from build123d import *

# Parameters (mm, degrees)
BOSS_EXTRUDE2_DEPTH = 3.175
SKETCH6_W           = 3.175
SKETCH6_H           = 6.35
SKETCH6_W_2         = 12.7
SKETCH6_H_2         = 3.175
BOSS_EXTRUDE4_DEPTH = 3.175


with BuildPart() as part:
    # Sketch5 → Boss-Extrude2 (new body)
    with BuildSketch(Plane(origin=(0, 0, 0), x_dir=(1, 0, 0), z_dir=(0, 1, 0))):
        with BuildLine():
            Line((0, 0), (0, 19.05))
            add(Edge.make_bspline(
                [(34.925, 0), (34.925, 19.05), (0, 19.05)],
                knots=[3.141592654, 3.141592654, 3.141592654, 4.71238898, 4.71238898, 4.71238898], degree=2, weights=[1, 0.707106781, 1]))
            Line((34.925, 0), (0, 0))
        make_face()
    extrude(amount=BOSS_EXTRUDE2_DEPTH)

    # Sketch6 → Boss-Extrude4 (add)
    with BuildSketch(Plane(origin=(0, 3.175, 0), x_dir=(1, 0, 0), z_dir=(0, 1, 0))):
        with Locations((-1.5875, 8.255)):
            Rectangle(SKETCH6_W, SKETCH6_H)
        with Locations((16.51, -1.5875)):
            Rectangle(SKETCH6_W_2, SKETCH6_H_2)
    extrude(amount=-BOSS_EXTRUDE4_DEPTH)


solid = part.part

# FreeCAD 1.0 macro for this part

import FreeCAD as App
import Part
import Sketcher
Q = App.Units.Quantity


def add_polygon(sketch, points):
    """Adds a closed chain of lines whose ends are joined by coincident constraints."""
    first, n = sketch.GeometryCount, len(points)
    for a, b in zip(points, points[1:] + points[:1]):
        sketch.addGeometry(Part.LineSegment(App.Vector(*a, 0), App.Vector(*b, 0)), False)
    for i in range(n):
        sketch.addConstraint(Sketcher.Constraint("Coincident", first + i, 2, first + (i + 1) % n, 1))

doc = App.newDocument("Part")
params = doc.addObject("Spreadsheet::Sheet", "Params")
for row, (alias, value) in enumerate([
    ("pad1_length", "0.125 in"),
    ("sketch2_width", "0.5 in"),
    ("sketch2_height", "0.25 in"),
    ("sketch2_width2", "0.125 in"),
    ("pad2_length", "0.125 in"),
], start=1):
    params.set(f"A{row}", alias)
    params.set(f"B{row}", "=" + value)
    params.setAlias(f"B{row}", alias)

body = doc.addObject("PartDesign::Body", "Body")

sketch1 = body.newObject("Sketcher::SketchObject", "Sketch")
sketch1.AttachmentSupport = (doc.getObject("XZ_Plane"), [""])
sketch1.MapMode = "FlatFace"
sketch1.addGeometry([
    Part.LineSegment(App.Vector(0, -19.05, 0), App.Vector(0, 0, 0)),
    Part.LineSegment(App.Vector(0, 0, 0), App.Vector(34.925, 0, 0)),
    Part.BSplineCurve([App.Vector(34.925, 0, 0), App.Vector(34.925, -19.05, 0), App.Vector(0, -19.05, 0)], [3, 3], [3.141592654, 4.71238898], False, 2, [1, 0.707106781, 1], False),
], False)
sketch1.addConstraint([
    Sketcher.Constraint("Block", 2),
    Sketcher.Constraint("Coincident", 0, 2, 1, 1),
    Sketcher.Constraint("Coincident", 1, 2, 2, 1),
    Sketcher.Constraint("Coincident", 2, 2, 0, 1),
    Sketcher.Constraint("Vertical", 0),
    Sketcher.Constraint("Horizontal", 1),
])
pad1 = body.newObject("PartDesign::Pad", "Pad")
pad1.Profile = sketch1
pad1.setExpression("Length", "Params.pad1_length")
pad1.Reversed = True

sketch2 = body.newObject("Sketcher::SketchObject", "Sketch001")
sketch2.AttachmentSupport = (doc.getObject("XZ_Plane"), [""])
sketch2.MapMode = "FlatFace"
sketch2.AttachmentOffset = App.Placement(App.Vector(0, 0, -0.125 * 25.4), App.Rotation())
add_polygon(sketch2, [(-3.2, -11.4), (-3.2, -5.1), (0, -5.1), (0, -11.4)])
add_polygon(sketch2, [(10.2, 0), (10.2, 3.2), (22.9, 3.2), (22.9, 0)])
sketch2.addConstraint([
    Sketcher.Constraint("Vertical", 0),
    Sketcher.Constraint("Horizontal", 1),
    Sketcher.Constraint("Vertical", 2),
    Sketcher.Constraint("Horizontal", 3),
    Sketcher.Constraint("Vertical", 4),
    Sketcher.Constraint("Horizontal", 5),
    Sketcher.Constraint("Vertical", 6),
    Sketcher.Constraint("Horizontal", 7),
    Sketcher.Constraint("PointOnObject", 1, 2, -2),
    Sketcher.Constraint("PointOnObject", 6, 2, -1),
    Sketcher.Constraint("Equal", 3, 4),
    Sketcher.Constraint("DistanceX", 5, 1, 5, 2, Q("0.5 in")),
    Sketcher.Constraint("DistanceY", 0, 1, 0, 2, Q("0.25 in")),
    Sketcher.Constraint("DistanceY", 0, 2, -1, 1, Q("0.2 in")),
    Sketcher.Constraint("DistanceX", -1, 1, 4, 2, Q("0.4 in")),
    Sketcher.Constraint("DistanceX", 1, 1, 1, 2, Q("0.125 in")),
])
sketch2.setExpression("Constraints[19]", "Params.sketch2_width")
sketch2.setExpression("Constraints[20]", "Params.sketch2_height")
sketch2.setExpression("Constraints[23]", "Params.sketch2_width2")
pad2 = body.newObject("PartDesign::Pad", "Pad001")
pad2.Profile = sketch2
pad2.setExpression("Length", "Params.pad2_length")

doc.recompute()
